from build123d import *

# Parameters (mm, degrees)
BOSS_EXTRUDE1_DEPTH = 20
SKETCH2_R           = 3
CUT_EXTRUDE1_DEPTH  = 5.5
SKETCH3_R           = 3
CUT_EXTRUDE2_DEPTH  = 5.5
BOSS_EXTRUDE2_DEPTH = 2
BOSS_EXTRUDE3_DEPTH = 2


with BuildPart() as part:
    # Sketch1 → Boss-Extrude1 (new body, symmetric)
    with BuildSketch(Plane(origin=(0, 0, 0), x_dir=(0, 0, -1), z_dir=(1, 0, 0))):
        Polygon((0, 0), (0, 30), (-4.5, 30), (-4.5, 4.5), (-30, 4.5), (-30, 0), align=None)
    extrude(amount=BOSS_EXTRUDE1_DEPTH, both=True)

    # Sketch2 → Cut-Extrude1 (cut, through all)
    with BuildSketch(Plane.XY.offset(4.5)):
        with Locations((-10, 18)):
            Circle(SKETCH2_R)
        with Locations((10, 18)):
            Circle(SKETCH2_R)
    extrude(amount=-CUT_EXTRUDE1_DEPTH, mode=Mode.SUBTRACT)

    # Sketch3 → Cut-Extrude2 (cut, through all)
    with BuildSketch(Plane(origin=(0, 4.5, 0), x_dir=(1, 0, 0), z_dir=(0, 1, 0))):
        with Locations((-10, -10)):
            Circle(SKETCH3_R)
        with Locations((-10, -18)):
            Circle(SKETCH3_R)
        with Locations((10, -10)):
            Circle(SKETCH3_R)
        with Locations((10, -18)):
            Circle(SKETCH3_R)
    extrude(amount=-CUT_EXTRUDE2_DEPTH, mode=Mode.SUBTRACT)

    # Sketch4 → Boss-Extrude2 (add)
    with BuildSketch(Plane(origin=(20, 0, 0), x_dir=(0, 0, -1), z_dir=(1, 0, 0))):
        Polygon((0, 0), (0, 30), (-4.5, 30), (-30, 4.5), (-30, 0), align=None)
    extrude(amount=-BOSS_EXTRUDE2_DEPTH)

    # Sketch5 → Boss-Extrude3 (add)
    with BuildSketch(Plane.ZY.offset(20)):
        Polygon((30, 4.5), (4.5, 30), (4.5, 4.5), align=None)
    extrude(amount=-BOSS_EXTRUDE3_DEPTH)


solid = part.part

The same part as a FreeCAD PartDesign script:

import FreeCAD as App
import Part
import Sketcher

V = App.Vector

doc = App.newDocument("Part")
params = doc.addObject("Spreadsheet::Sheet", "Params")
for row, (alias, value) in enumerate([
    ("sketch1_width", "30 mm"),
    ("sketch1_width2", "25.5 mm"),
    ("pad1_length", "40 mm"),
    ("sketch2_diameter", "6 mm"),
    ("sketch3_diameter", "6 mm"),
    ("sketch4_width", "30 mm"),
    ("sketch4_width2", "4.5 mm"),
    ("pad2_length", "2 mm"),
    ("sketch5_width", "25.5 mm"),
    ("pad3_length", "2 mm"),
], start=1):
    params.set(f"A{row}", alias)
    params.set(f"B{row}", "=" + value)
    params.setAlias(f"B{row}", alias)

body = doc.addObject("PartDesign::Body", "Body")

# Sketch on YZ plane
sketch1 = body.newObject("Sketcher::SketchObject", "Sketch")
sketch1.AttachmentSupport = (doc.getObject("YZ_Plane"), [""])
sketch1.MapMode = "FlatFace"
sketch1.addGeometry(Part.LineSegment(V(0, 0, 0), V(30, 0, 0)), False)
sketch1.addGeometry(Part.LineSegment(V(30, 0, 0), V(30, 4.5, 0)), False)
sketch1.addGeometry(Part.LineSegment(V(30, 4.5, 0), V(4.5, 4.5, 0)), False)
sketch1.addGeometry(Part.LineSegment(V(4.5, 4.5, 0), V(4.5, 30, 0)), False)
sketch1.addGeometry(Part.LineSegment(V(4.5, 30, 0), V(0, 30, 0)), False)
sketch1.addGeometry(Part.LineSegment(V(0, 30, 0), V(0, 0, 0)), False)
sketch1.addConstraint(Sketcher.Constraint("Coincident", 0, 2, 1, 1))
sketch1.addConstraint(Sketcher.Constraint("Coincident", 1, 2, 2, 1))
sketch1.addConstraint(Sketcher.Constraint("Coincident", 2, 2, 3, 1))
sketch1.addConstraint(Sketcher.Constraint("Coincident", 3, 2, 4, 1))
sketch1.addConstraint(Sketcher.Constraint("Coincident", 4, 2, 5, 1))
sketch1.addConstraint(Sketcher.Constraint("Coincident", 5, 2, 0, 1))
sketch1.addConstraint(Sketcher.Constraint("Horizontal", 0))
sketch1.addConstraint(Sketcher.Constraint("Vertical", 1))
sketch1.addConstraint(Sketcher.Constraint("Horizontal", 2))
sketch1.addConstraint(Sketcher.Constraint("Vertical", 3))
sketch1.addConstraint(Sketcher.Constraint("Horizontal", 4))
sketch1.addConstraint(Sketcher.Constraint("Vertical", 5))
sketch1.addConstraint(Sketcher.Constraint("Coincident", 5, 2, -1, 1))
sketch1.addConstraint(Sketcher.Constraint("Equal", 4, 1))
sketch1.addConstraint(Sketcher.Constraint("Equal", 2, 3))
sketch1.addConstraint(Sketcher.Constraint("DistanceX", 0, 1, 0, 2, 30.0))
sketch1.addConstraint(Sketcher.Constraint("DistanceX", 2, 2, 2, 1, 25.5))
sketch1.setExpression("Constraints[15]", "Params.sketch1_width")
sketch1.setExpression("Constraints[16]", "Params.sketch1_width2")
pad1 = body.newObject("PartDesign::Pad", "Pad")
pad1.Profile = sketch1
pad1.setExpression("Length", "Params.pad1_length")
pad1.Midplane = True

# Sketch on XY plane
sketch2 = body.newObject("Sketcher::SketchObject", "Sketch001")
sketch2.AttachmentSupport = (doc.getObject("XY_Plane"), [""])
sketch2.MapMode = "FlatFace"
sketch2.AttachmentOffset = App.Placement(V(0, 0, 4.5), App.Rotation())
sketch2.addGeometry(Part.Circle(V(-10, 18, 0), V(0, 0, 1), 3), False)
sketch2.addGeometry(Part.Circle(V(10, 18, 0), V(0, 0, 1), 3), False)
sketch2.addConstraint(Sketcher.Constraint("Equal", 0, 1))
sketch2.addConstraint(Sketcher.Constraint("Symmetric", 0, 3, 1, 3, -2))
sketch2.addConstraint(Sketcher.Constraint("Diameter", 0, 6.0))
sketch2.addConstraint(Sketcher.Constraint("DistanceX", 0, 3, -1, 1, 10.0))
sketch2.addConstraint(Sketcher.Constraint("DistanceY", -1, 1, 0, 3, 18.0))
sketch2.setExpression("Constraints[2]", "Params.sketch2_diameter")
pocket1 = body.newObject("PartDesign::Pocket", "Pocket")
pocket1.Profile = sketch2
pocket1.Type = "ThroughAll"

# Sketch on XZ plane
sketch3 = body.newObject("Sketcher::SketchObject", "Sketch002")
sketch3.AttachmentSupport = (doc.getObject("XZ_Plane"), [""])
sketch3.MapMode = "FlatFace"
sketch3.AttachmentOffset = App.Placement(V(0, 0, -4.5), App.Rotation())
sketch3.addGeometry(Part.Circle(V(-10, 10, 0), V(0, 0, 1), 3), False)
sketch3.addGeometry(Part.Circle(V(-10, 18, 0), V(0, 0, 1), 3), False)
sketch3.addGeometry(Part.Circle(V(10, 10, 0), V(0, 0, 1), 3), False)
sketch3.addGeometry(Part.Circle(V(10, 18, 0), V(0, 0, 1), 3), False)
sketch3.addConstraint(Sketcher.Constraint("Equal", 0, 1))
sketch3.addConstraint(Sketcher.Constraint("Equal", 1, 2))
sketch3.addConstraint(Sketcher.Constraint("Equal", 2, 3))
sketch3.addConstraint(Sketcher.Constraint("Symmetric", 0, 3, 2, 3, -2))
sketch3.addConstraint(Sketcher.Constraint("Symmetric", 1, 3, 3, 3, -2))
sketch3.addConstraint(Sketcher.Constraint("Vertical", 0, 3, 1, 3))
sketch3.addConstraint(Sketcher.Constraint("Diameter", 0, 6.0))
sketch3.addConstraint(Sketcher.Constraint("DistanceX", 0, 3, -1, 1, 10.0))
sketch3.addConstraint(Sketcher.Constraint("DistanceY", -1, 1, 0, 3, 10.0))
sketch3.addConstraint(Sketcher.Constraint("DistanceY", -1, 1, 1, 3, 18.0))
sketch3.setExpression("Constraints[6]", "Params.sketch3_diameter")
pocket2 = body.newObject("PartDesign::Pocket", "Pocket001")
pocket2.Profile = sketch3
pocket2.Type = "ThroughAll"
pocket2.Reversed = True

# Sketch on YZ plane
sketch4 = body.newObject("Sketcher::SketchObject", "Sketch003")
sketch4.AttachmentSupport = (doc.getObject("YZ_Plane"), [""])
sketch4.MapMode = "FlatFace"
sketch4.AttachmentOffset = App.Placement(V(0, 0, 20), App.Rotation())
sketch4.addGeometry(Part.LineSegment(V(0, 0, 0), V(30, 0, 0)), False)
sketch4.addGeometry(Part.LineSegment(V(30, 0, 0), V(30, 4.5, 0)), False)
sketch4.addGeometry(Part.LineSegment(V(30, 4.5, 0), V(4.5, 30, 0)), False)
sketch4.addGeometry(Part.LineSegment(V(4.5, 30, 0), V(0, 30, 0)), False)
sketch4.addGeometry(Part.LineSegment(V(0, 30, 0), V(0, 0, 0)), False)
sketch4.addConstraint(Sketcher.Constraint("Coincident", 0, 2, 1, 1))
sketch4.addConstraint(Sketcher.Constraint("Coincident", 1, 2, 2, 1))
sketch4.addConstraint(Sketcher.Constraint("Coincident", 2, 2, 3, 1))
sketch4.addConstraint(Sketcher.Constraint("Coincident", 3, 2, 4, 1))
sketch4.addConstraint(Sketcher.Constraint("Coincident", 4, 2, 0, 1))
sketch4.addConstraint(Sketcher.Constraint("Horizontal", 0))
sketch4.addConstraint(Sketcher.Constraint("Vertical", 1))
sketch4.addConstraint(Sketcher.Constraint("Horizontal", 3))
sketch4.addConstraint(Sketcher.Constraint("Vertical", 4))
sketch4.addConstraint(Sketcher.Constraint("Coincident", 4, 2, -1, 1))
sketch4.addConstraint(Sketcher.Constraint("Equal", 3, 1))
sketch4.addConstraint(Sketcher.Constraint("Equal", 0, 4))
sketch4.addConstraint(Sketcher.Constraint("DistanceX", 0, 1, 0, 2, 30.0))
sketch4.addConstraint(Sketcher.Constraint("DistanceX", 3, 2, 3, 1, 4.5))
sketch4.setExpression("Constraints[12]", "Params.sketch4_width")
sketch4.setExpression("Constraints[13]", "Params.sketch4_width2")
pad2 = body.newObject("PartDesign::Pad", "Pad001")
pad2.Profile = sketch4
pad2.setExpression("Length", "Params.pad2_length")
pad2.Reversed = True

# Sketch on YZ plane
sketch5 = body.newObject("Sketcher::SketchObject", "Sketch004")
sketch5.AttachmentSupport = (doc.getObject("YZ_Plane"), [""])
sketch5.MapMode = "FlatFace"
sketch5.AttachmentOffset = App.Placement(V(0, 0, -20), App.Rotation())
sketch5.addGeometry(Part.LineSegment(V(4, 30, 0), V(30, 4, 0)), False)
sketch5.addGeometry(Part.LineSegment(V(30, 4, 0), V(4, 4, 0)), False)
sketch5.addGeometry(Part.LineSegment(V(4, 4, 0), V(4, 30, 0)), False)
sketch5.addConstraint(Sketcher.Constraint("Coincident", 0, 2, 1, 1))
sketch5.addConstraint(Sketcher.Constraint("Coincident", 1, 2, 2, 1))
sketch5.addConstraint(Sketcher.Constraint("Coincident", 2, 2, 0, 1))
sketch5.addConstraint(Sketcher.Constraint("Horizontal", 1))
sketch5.addConstraint(Sketcher.Constraint("Vertical", 2))
sketch5.addConstraint(Sketcher.Constraint("Equal", 1, 2))
sketch5.addConstraint(Sketcher.Constraint("DistanceX", 1, 2, 1, 1, 25.5))
sketch5.addConstraint(Sketcher.Constraint("DistanceX", -1, 1, 0, 2, 30.0))
sketch5.addConstraint(Sketcher.Constraint("DistanceY", -1, 1, 2, 2, 30.0))
sketch5.setExpression("Constraints[6]", "Params.sketch5_width")
pad3 = body.newObject("PartDesign::Pad", "Pad002")
pad3.Profile = sketch5
pad3.setExpression("Length", "Params.pad3_length")

doc.recompute()
